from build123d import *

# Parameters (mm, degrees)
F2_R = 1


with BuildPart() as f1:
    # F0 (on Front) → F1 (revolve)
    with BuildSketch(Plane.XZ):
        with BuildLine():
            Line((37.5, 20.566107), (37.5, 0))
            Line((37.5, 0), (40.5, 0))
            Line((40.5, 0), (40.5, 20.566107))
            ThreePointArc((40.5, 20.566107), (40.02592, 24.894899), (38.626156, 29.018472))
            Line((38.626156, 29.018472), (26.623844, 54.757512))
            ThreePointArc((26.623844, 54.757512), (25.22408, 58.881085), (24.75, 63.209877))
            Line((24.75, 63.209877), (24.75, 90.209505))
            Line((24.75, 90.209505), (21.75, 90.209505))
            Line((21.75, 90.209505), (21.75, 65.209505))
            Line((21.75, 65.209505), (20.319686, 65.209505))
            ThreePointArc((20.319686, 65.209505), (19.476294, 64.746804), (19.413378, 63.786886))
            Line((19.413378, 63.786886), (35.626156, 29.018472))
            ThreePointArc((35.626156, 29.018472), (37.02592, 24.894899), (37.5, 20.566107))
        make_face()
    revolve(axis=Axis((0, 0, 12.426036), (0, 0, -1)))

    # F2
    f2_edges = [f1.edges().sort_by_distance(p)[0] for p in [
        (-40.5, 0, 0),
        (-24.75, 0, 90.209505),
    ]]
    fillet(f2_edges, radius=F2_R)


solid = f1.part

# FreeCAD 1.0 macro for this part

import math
import FreeCAD as App
import Part
import Sketcher

V = App.Vector
Q = App.Units.Quantity


def edges_at(feature, points):
    """Names of the edges that pass closest to the given points."""
    edges = feature.Shape.Edges
    near = lambda p: min(range(len(edges)), key=lambda i: edges[i].distToShape(Part.Vertex(*p))[0])
    return sorted({f"Edge{near(p) + 1}" for p in points})

doc = App.newDocument("Part")
body = doc.addObject("PartDesign::Body", "Body")

sketch1 = body.newObject("Sketcher::SketchObject", "Sketch")
sketch1.AttachmentSupport = (doc.getObject("XZ_Plane"), [""])
sketch1.MapMode = "FlatFace"
sketch1.addGeometry([
    Part.LineSegment(V(37.5, 20.6, 0), V(37.5, 0, 0)),
    Part.LineSegment(V(37.5, 0, 0), V(40.5, 0, 0)),
    Part.LineSegment(V(40.5, 0, 0), V(40.5, 20.6, 0)),
    Part.ArcOfCircle(Part.Circle(V(20.5, 20.6, 0), V(0, 0, 1), 20), math.radians(0), math.radians(25)),
    Part.LineSegment(V(38.6, 29, 0), V(26.6, 54.8, 0)),
    Part.ArcOfCircle(Part.Circle(V(44.8, 63.2, 0), V(0, 0, 1), 20), math.radians(-180), math.radians(-155)),
    Part.LineSegment(V(24.8, 63.2, 0), V(24.8, 90.2, 0)),
    Part.LineSegment(V(24.8, 90.2, 0), V(21.8, 90.2, 0)),
    Part.LineSegment(V(21.8, 90.2, 0), V(21.8, 65.2, 0)),
    Part.LineSegment(V(21.8, 65.2, 0), V(20.3, 65.2, 0)),
    Part.ArcOfCircle(Part.Circle(V(20.3, 64.2, 0), V(0, 0, 1), 1), math.radians(90), math.radians(205)),
    Part.LineSegment(V(19.4, 63.8, 0), V(35.6, 29, 0)),
    Part.ArcOfCircle(Part.Circle(V(17.5, 20.6, 0), V(0, 0, 1), 20), math.radians(0), math.radians(25)),
], False)
sketch1.addConstraint([
    Sketcher.Constraint("Coincident", 0, 2, 1, 1),
    Sketcher.Constraint("Coincident", 1, 2, 2, 1),
    Sketcher.Constraint("Tangent", 2, 2, 3, 1),
    Sketcher.Constraint("Tangent", 3, 2, 4, 1),
    Sketcher.Constraint("Tangent", 4, 2, 5, 2),
    Sketcher.Constraint("Tangent", 5, 1, 6, 1),
    Sketcher.Constraint("Coincident", 6, 2, 7, 1),
    Sketcher.Constraint("Coincident", 7, 2, 8, 1),
    Sketcher.Constraint("Coincident", 8, 2, 9, 1),
    Sketcher.Constraint("Tangent", 9, 2, 10, 1),
    Sketcher.Constraint("Tangent", 10, 2, 11, 1),
    Sketcher.Constraint("Tangent", 11, 2, 12, 2),
    Sketcher.Constraint("Tangent", 12, 1, 0, 1),
    Sketcher.Constraint("Vertical", 0),
    Sketcher.Constraint("Horizontal", 1),
    Sketcher.Constraint("Vertical", 2),
    Sketcher.Constraint("Vertical", 6),
    Sketcher.Constraint("Horizontal", 7),
    Sketcher.Constraint("Vertical", 8),
    Sketcher.Constraint("Horizontal", 9),
    Sketcher.Constraint("Equal", 3, 5),
    Sketcher.Constraint("Equal", 5, 12),
    Sketcher.Constraint("PointOnObject", 0, 2, -1),
    Sketcher.Constraint("Parallel", 4, 11),
    Sketcher.Constraint("Horizontal", 3, 3, 12, 3),
    Sketcher.Constraint("Equal", 1, 7),
    Sketcher.Constraint("Radius", 10, 1.0),
    Sketcher.Constraint("DistanceX", 1, 1, 1, 2, 3.0),
    Sketcher.Constraint("DistanceY", 8, 2, 8, 1, 25.0),
    Sketcher.Constraint("Angle", 4, Q("115.000001 deg")),
    Sketcher.Constraint("DistanceX", -1, 1, 0, 2, 37.5),
    Sketcher.Constraint("DistanceX", -1, 1, 5, 1, 24.75),
    Sketcher.Constraint("Radius", 3, 20.000011),
    Sketcher.Constraint("Distance", 11, 38.3627),
    Sketcher.Constraint("DistanceY", 0, 2, 0, 1, 20.566107),
])
revolution = body.newObject("PartDesign::Revolution", "Revolution")
revolution.Profile = sketch1
revolution.ReferenceAxis = (sketch1, ["V_Axis"])
revolution.Angle = 360
doc.recompute()

fillet = body.newObject("PartDesign::Fillet", "Fillet")
fillet.Base = (revolution, edges_at(revolution, [(-40.5, 0, 0), (-24.75, 0, 90.21)]))
fillet.Radius = 1

doc.recompute()
